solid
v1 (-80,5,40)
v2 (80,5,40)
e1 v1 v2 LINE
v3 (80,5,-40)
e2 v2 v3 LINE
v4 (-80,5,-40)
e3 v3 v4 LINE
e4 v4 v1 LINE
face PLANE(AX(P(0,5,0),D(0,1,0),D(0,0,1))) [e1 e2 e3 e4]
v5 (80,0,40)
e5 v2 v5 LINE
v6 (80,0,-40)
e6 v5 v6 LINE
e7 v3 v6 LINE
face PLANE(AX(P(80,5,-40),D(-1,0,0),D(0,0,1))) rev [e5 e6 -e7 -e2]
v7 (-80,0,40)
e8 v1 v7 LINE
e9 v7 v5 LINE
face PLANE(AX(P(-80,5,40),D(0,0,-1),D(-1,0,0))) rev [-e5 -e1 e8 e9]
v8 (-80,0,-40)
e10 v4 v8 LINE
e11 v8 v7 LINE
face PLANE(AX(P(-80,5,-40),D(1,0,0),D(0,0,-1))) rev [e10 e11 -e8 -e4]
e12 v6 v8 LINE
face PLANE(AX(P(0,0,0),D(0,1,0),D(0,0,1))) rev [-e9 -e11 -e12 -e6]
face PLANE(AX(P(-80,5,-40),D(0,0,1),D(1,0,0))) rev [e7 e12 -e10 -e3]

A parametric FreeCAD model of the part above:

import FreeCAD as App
import Part
import Sketcher

V = App.Vector
Q = App.Units.Quantity

doc = App.newDocument("Part")
params = doc.addObject("Spreadsheet::Sheet", "Params")
for row, (alias, value) in enumerate([
    ("sketch1_width", "160 mm"),
    ("sketch1_height", "80 mm"),
    ("pad1_length", "5 mm"),
], start=1):
    params.set(f"A{row}", alias)
    params.set(f"B{row}", "=" + value)
    params.setAlias(f"B{row}", alias)

body = doc.addObject("PartDesign::Body", "Body")

# Sketch on XZ plane
sketch1 = body.newObject("Sketcher::SketchObject", "Sketch")
sketch1.AttachmentSupport = (doc.getObject("XZ_Plane"), [""])
sketch1.MapMode = "FlatFace"
sketch1.addGeometry([
    Part.LineSegment(V(-80, -40, 0), V(-80, 40, 0)),
    Part.LineSegment(V(-80, 40, 0), V(80, 40, 0)),
    Part.LineSegment(V(80, 40, 0), V(80, -40, 0)),
    Part.LineSegment(V(80, -40, 0), V(-80, -40, 0)),
], False)
sketch1.addConstraint([
    Sketcher.Constraint("Coincident", 0, 2, 1, 1),
    Sketcher.Constraint("Coincident", 1, 2, 2, 1),
    Sketcher.Constraint("Coincident", 2, 2, 3, 1),
    Sketcher.Constraint("Coincident", 3, 2, 0, 1),
    Sketcher.Constraint("Vertical", 0),
    Sketcher.Constraint("Horizontal", 1),
    Sketcher.Constraint("Vertical", 2),
    Sketcher.Constraint("Horizontal", 3),
    Sketcher.Constraint("Symmetric", 0, 2, 2, 2, -1, 1),
    Sketcher.Constraint("DistanceX", 1, 1, 1, 2, Q("160 mm")),
    Sketcher.Constraint("DistanceY", 0, 1, 0, 2, Q("80 mm")),
])
sketch1.setExpression("Constraints[9]", "Params.sketch1_width")
sketch1.setExpression("Constraints[10]", "Params.sketch1_height")
pad1 = body.newObject("PartDesign::Pad", "Pad")
pad1.Profile = sketch1
pad1.setExpression("Length", "Params.pad1_length")
pad1.Reversed = True

doc.recompute()
